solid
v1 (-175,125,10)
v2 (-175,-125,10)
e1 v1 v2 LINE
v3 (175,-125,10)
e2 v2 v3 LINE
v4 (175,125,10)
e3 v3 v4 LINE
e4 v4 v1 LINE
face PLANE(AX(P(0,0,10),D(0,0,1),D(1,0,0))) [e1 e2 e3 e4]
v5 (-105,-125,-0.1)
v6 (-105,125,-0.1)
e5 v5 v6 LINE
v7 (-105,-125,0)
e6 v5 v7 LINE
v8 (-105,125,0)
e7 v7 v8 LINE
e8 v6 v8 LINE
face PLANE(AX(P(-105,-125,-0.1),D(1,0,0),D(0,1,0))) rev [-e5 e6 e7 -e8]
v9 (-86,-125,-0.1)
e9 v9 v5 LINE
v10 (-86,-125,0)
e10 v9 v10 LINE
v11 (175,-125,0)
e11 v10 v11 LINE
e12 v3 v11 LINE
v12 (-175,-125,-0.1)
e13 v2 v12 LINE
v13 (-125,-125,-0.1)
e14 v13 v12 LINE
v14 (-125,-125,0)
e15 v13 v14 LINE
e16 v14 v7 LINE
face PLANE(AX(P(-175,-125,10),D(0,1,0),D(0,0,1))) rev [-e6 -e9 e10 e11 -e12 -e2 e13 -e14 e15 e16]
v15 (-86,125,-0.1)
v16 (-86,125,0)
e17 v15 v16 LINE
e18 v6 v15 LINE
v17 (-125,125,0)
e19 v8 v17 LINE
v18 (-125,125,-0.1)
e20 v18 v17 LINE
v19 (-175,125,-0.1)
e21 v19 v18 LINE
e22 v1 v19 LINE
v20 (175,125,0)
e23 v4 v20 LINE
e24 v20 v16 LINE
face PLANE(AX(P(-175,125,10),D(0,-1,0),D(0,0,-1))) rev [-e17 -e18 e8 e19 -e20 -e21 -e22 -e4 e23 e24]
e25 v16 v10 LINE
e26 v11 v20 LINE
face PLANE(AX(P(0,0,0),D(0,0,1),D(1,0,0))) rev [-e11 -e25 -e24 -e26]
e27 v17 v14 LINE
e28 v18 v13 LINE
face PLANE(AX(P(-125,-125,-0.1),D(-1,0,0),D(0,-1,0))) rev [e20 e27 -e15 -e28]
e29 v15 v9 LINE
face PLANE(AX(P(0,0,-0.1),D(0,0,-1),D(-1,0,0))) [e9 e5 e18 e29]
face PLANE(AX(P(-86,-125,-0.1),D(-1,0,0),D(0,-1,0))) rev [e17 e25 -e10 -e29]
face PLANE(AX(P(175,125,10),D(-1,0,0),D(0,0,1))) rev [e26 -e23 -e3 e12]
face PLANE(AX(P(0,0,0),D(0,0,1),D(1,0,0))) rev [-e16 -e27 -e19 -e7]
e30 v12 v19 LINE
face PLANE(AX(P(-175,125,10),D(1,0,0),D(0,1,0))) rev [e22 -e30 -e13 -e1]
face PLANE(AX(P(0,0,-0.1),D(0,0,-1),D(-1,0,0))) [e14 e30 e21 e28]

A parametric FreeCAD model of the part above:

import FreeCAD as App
import Part
import Sketcher

V = App.Vector

doc = App.newDocument("Part")
body = doc.addObject("PartDesign::Body", "Body")

# Sketch on XY plane
sketch1 = body.newObject("Sketcher::SketchObject", "Sketch")
sketch1.AttachmentSupport = (doc.getObject("XY_Plane"), [""])
sketch1.MapMode = "FlatFace"
sketch1.addGeometry([
    Part.LineSegment(V(-175, 125, 0), V(-175, -125, 0)),
    Part.LineSegment(V(-175, -125, 0), V(175, -125, 0)),
    Part.LineSegment(V(175, -125, 0), V(175, 125, 0)),
    Part.LineSegment(V(175, 125, 0), V(-175, 125, 0)),
], False)
sketch1.addConstraint([
    Sketcher.Constraint("Coincident", 0, 2, 1, 1),
    Sketcher.Constraint("Coincident", 1, 2, 2, 1),
    Sketcher.Constraint("Coincident", 2, 2, 3, 1),
    Sketcher.Constraint("Coincident", 3, 2, 0, 1),
    Sketcher.Constraint("Vertical", 0),
    Sketcher.Constraint("Horizontal", 1),
    Sketcher.Constraint("Vertical", 2),
    Sketcher.Constraint("Horizontal", 3),
    Sketcher.Constraint("Symmetric", 0, 2, 2, 2, -1, 1),
    Sketcher.Constraint("DistanceX", 1, 1, 1, 2, 350.0),
    Sketcher.Constraint("DistanceY", 0, 2, 0, 1, 250.0),
])
pad1 = body.newObject("PartDesign::Pad", "Pad")
pad1.Profile = sketch1
pad1.Length = 10

# Sketch on XY plane
sketch2 = body.newObject("Sketcher::SketchObject", "Sketch001")
sketch2.AttachmentSupport = (doc.getObject("XY_Plane"), [""])
sketch2.MapMode = "FlatFace"
sketch2.addGeometry([
    Part.LineSegment(V(-125, 125, 0), V(-125, -125, 0)),  # 0
    Part.LineSegment(V(-125, -125, 0), V(-175, -125, 0)),  # 1
    Part.LineSegment(V(-175, -125, 0), V(-175, 125, 0)),  # 2
    Part.LineSegment(V(-175, 125, 0), V(-125, 125, 0)),  # 3
    Part.LineSegment(V(-86, 125, 0), V(-86, -125, 0)),  # 4
    Part.LineSegment(V(-86, -125, 0), V(-105, -125, 0)),  # 5
    Part.LineSegment(V(-105, -125, 0), V(-105, 125, 0)),  # 6
    Part.LineSegment(V(-105, 125, 0), V(-86, 125, 0)),  # 7
], False)
sketch2.addConstraint([
    Sketcher.Constraint("Coincident", 0, 2, 1, 1),
    Sketcher.Constraint("Coincident", 1, 2, 2, 1),
    Sketcher.Constraint("Coincident", 2, 2, 3, 1),
    Sketcher.Constraint("Coincident", 3, 2, 0, 1),
    Sketcher.Constraint("Coincident", 4, 2, 5, 1),
    Sketcher.Constraint("Coincident", 5, 2, 6, 1),
    Sketcher.Constraint("Coincident", 6, 2, 7, 1),
    Sketcher.Constraint("Coincident", 7, 2, 4, 1),
    Sketcher.Constraint("Vertical", 0),
    Sketcher.Constraint("Horizontal", 1),
    Sketcher.Constraint("Vertical", 2),
    Sketcher.Constraint("Horizontal", 3),
    Sketcher.Constraint("Vertical", 4),
    Sketcher.Constraint("Horizontal", 5),
    Sketcher.Constraint("Vertical", 6),
    Sketcher.Constraint("Horizontal", 7),
    Sketcher.Constraint("Horizontal", 1, 2, 4, 2),
    Sketcher.Constraint("Horizontal", 3, 2, 6, 2),
    Sketcher.Constraint("DistanceX", 1, 2, 1, 1, 50.0),
    Sketcher.Constraint("DistanceX", 5, 2, 5, 1, 19.0),
    Sketcher.Constraint("DistanceY", 0, 2, 0, 1, 250.0),
    Sketcher.Constraint("DistanceX", 0, 2, -1, 1, 125.0),
    Sketcher.Constraint("DistanceY", 0, 2, -1, 1, 125.0),
    Sketcher.Constraint("DistanceX", 4, 2, -1, 1, 86.0),
])
pad2 = body.newObject("PartDesign::Pad", "Pad001")
pad2.Profile = sketch2
pad2.Length = 0.1
pad2.Reversed = True

doc.recompute()
